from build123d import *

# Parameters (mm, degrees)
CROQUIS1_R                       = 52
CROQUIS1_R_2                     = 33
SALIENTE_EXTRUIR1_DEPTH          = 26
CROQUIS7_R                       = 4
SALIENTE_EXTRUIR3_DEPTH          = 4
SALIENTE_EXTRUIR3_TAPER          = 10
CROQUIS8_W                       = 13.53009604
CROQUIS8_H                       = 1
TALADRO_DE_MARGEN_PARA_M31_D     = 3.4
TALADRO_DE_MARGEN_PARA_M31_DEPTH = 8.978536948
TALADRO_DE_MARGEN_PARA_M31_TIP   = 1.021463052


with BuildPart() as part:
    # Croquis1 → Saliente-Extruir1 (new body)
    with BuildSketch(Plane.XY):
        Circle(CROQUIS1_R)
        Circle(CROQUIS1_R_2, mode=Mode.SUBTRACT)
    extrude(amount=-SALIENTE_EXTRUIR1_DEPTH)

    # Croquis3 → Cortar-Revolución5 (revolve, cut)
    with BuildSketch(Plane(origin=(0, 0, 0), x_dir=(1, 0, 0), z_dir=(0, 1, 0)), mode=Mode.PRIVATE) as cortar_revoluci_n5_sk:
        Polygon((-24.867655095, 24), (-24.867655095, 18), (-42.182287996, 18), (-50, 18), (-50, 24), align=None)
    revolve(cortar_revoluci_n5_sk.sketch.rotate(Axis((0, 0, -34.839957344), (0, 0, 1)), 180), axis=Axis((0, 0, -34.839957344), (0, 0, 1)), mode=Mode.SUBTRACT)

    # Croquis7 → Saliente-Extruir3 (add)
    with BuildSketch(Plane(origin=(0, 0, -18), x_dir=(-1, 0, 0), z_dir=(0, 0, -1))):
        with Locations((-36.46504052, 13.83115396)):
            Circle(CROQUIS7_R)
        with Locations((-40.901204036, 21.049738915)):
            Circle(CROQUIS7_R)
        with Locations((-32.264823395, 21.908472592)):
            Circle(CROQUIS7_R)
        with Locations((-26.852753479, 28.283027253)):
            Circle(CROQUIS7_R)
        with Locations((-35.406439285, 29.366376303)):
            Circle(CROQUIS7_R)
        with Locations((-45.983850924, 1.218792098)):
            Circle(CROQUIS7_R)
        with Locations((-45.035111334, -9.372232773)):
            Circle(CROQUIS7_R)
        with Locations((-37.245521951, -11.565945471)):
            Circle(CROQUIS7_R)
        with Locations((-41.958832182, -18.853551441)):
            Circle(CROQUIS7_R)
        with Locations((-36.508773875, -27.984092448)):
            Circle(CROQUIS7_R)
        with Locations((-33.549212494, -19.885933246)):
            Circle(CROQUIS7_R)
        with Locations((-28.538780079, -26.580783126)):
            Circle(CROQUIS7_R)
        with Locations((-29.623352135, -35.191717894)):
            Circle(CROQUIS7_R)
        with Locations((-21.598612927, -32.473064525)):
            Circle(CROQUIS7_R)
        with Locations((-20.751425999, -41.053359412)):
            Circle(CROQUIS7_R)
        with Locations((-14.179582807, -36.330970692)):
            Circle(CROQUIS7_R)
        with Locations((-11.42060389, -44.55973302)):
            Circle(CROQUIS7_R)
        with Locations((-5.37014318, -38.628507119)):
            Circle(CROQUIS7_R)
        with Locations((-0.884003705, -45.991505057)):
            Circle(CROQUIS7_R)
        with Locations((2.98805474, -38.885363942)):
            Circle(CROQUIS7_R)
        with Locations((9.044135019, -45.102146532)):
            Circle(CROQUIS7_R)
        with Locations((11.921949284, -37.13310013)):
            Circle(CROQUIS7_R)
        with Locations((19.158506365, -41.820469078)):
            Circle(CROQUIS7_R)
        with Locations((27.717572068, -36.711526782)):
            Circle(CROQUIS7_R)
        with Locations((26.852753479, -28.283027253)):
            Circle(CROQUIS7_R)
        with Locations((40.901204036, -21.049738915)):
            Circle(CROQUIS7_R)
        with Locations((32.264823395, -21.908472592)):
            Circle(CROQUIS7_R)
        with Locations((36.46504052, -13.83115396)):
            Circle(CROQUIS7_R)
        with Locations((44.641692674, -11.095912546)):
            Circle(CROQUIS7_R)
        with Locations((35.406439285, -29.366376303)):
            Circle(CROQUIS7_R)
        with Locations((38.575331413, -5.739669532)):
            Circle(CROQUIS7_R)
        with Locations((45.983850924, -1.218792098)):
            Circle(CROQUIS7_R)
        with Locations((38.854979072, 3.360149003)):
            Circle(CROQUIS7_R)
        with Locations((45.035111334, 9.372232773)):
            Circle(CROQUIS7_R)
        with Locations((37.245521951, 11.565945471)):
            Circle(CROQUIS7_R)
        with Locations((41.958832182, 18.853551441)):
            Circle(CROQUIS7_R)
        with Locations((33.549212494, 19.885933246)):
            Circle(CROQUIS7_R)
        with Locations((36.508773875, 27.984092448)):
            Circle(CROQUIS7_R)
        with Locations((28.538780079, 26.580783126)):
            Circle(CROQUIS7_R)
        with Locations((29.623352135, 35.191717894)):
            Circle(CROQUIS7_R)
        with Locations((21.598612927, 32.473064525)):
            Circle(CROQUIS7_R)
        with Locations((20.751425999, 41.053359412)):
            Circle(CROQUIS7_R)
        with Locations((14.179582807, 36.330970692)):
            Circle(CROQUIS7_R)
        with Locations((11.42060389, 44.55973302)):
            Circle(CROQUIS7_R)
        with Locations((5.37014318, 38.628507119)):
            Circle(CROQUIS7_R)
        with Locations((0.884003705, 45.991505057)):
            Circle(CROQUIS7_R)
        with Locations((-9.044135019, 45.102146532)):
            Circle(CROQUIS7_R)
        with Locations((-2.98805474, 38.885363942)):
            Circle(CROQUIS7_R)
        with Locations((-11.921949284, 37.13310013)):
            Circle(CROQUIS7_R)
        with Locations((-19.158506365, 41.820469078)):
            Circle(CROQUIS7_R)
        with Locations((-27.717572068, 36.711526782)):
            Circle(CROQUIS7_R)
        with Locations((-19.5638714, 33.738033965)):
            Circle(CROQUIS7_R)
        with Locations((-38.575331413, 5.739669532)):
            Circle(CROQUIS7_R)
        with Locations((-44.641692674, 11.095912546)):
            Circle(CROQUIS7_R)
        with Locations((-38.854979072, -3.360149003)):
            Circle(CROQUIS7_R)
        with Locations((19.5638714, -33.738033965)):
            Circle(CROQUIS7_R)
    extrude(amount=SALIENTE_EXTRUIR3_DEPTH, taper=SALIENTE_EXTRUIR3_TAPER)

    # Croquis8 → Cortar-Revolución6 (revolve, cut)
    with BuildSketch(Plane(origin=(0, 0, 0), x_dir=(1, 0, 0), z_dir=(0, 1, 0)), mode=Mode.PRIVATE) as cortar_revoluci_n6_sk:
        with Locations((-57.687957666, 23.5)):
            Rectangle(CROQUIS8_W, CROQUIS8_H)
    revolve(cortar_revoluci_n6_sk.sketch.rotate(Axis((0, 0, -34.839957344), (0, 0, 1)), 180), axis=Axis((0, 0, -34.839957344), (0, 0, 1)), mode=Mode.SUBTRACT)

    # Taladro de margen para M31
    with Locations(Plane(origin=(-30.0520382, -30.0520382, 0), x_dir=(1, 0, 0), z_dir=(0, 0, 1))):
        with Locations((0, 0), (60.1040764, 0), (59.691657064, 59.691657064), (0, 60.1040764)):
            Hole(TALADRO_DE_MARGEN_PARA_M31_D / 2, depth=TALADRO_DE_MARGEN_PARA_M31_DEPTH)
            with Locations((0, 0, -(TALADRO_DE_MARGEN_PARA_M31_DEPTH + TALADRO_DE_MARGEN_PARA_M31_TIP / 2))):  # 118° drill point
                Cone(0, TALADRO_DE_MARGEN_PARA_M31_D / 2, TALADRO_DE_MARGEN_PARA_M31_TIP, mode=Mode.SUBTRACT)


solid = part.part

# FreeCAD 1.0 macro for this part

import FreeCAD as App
import Part
import Sketcher

V = App.Vector

doc = App.newDocument("Part")
body = doc.addObject("PartDesign::Body", "Body")

# Sketch on XY plane
sketch1 = doc.addObject("Sketcher::SketchObject", "Sketch")
body.addObject(sketch1)
sketch1.AttachmentSupport = (doc.XY_Plane, [""])
sketch1.MapMode = "FlatFace"
sketch1.addGeometry(Part.Circle(V(0, 0, 0), V(0, 0, 1), 52), False)
sketch1.addGeometry(Part.Circle(V(0, 0, 0), V(0, 0, 1), 33), False)
sketch1.addConstraint(Sketcher.Constraint("Coincident", 0, 3, -1, 1))
sketch1.addConstraint(Sketcher.Constraint("Coincident", 1, 3, -1, 1))
sketch1.addConstraint(Sketcher.Constraint("Diameter", 0, 104.0))
sketch1.addConstraint(Sketcher.Constraint("Diameter", 1, 66.0))
pad1 = doc.addObject("PartDesign::Pad", "Pad")
body.addObject(pad1)
pad1.Profile = sketch1
pad1.Length = 26
pad1.Reversed = True

# Sketch on XZ plane
sketch2 = doc.addObject("Sketcher::SketchObject", "Sketch001")
body.addObject(sketch2)
sketch2.AttachmentSupport = (doc.XZ_Plane, [""])
sketch2.MapMode = "FlatFace"
sketch2.addGeometry(Part.LineSegment(V(-24.867655, -18, 0), V(-24.867655, -24, 0)), False)
sketch2.addGeometry(Part.LineSegment(V(-24.867655, -24, 0), V(-50, -24, 0)), False)
sketch2.addGeometry(Part.LineSegment(V(-50, -24, 0), V(-50, -18, 0)), False)
sketch2.addGeometry(Part.LineSegment(V(-50, -18, 0), V(-24.867655, -18, 0)), False)
sketch2.addConstraint(Sketcher.Constraint("Coincident", 0, 2, 1, 1))
sketch2.addConstraint(Sketcher.Constraint("Coincident", 1, 2, 2, 1))
sketch2.addConstraint(Sketcher.Constraint("Coincident", 2, 2, 3, 1))
sketch2.addConstraint(Sketcher.Constraint("Coincident", 3, 2, 0, 1))
sketch2.addConstraint(Sketcher.Constraint("Vertical", 0))
sketch2.addConstraint(Sketcher.Constraint("Horizontal", 1))
sketch2.addConstraint(Sketcher.Constraint("Vertical", 2))
sketch2.addConstraint(Sketcher.Constraint("Horizontal", 3))
sketch2.addConstraint(Sketcher.Constraint("DistanceY", 0, 2, 0, 1, 6.0))
sketch2.addConstraint(Sketcher.Constraint("DistanceY", 0, 2, -1, 1, 24.0))
sketch2.addConstraint(Sketcher.Constraint("DistanceX", 1, 2, -1, 1, 50.0))
sketch2.addConstraint(Sketcher.Constraint("DistanceX", 1, 2, 1, 1, 25.132345))
groove = doc.addObject("PartDesign::Groove", "Groove")
body.addObject(groove)
groove.Profile = sketch2
groove.ReferenceAxis = (sketch2, ["V_Axis"])
groove.Angle = 360

# Sketch on XY plane
sketch3 = doc.addObject("Sketcher::SketchObject", "Sketch002")
body.addObject(sketch3)
sketch3.AttachmentSupport = (doc.XY_Plane, [""])
sketch3.MapMode = "FlatFace"
sketch3.AttachmentOffset = App.Placement(V(0, 0, -18), App.Rotation())
sketch3.addGeometry(Part.Circle(V(36.465041, 13.831154, 0), V(0, 0, 1), 4), False)
sketch3.addGeometry(Part.Circle(V(40.901204, 21.049739, 0), V(0, 0, 1), 4), False)
sketch3.addGeometry(Part.Circle(V(32.264823, 21.908473, 0), V(0, 0, 1), 4), False)
sketch3.addGeometry(Part.Circle(V(26.852753, 28.283027, 0), V(0, 0, 1), 4), False)
sketch3.addGeometry(Part.Circle(V(35.406439, 29.366376, 0), V(0, 0, 1), 4), False)
sketch3.addGeometry(Part.Circle(V(45.983851, 1.218792, 0), V(0, 0, 1), 4), False)
sketch3.addGeometry(Part.Circle(V(45.035111, -9.372233, 0), V(0, 0, 1), 4), False)
sketch3.addGeometry(Part.Circle(V(37.245522, -11.565945, 0), V(0, 0, 1), 4), False)
sketch3.addGeometry(Part.Circle(V(41.958832, -18.853551, 0), V(0, 0, 1), 4), False)
sketch3.addGeometry(Part.Circle(V(36.508774, -27.984092, 0), V(0, 0, 1), 4), False)
sketch3.addGeometry(Part.Circle(V(33.549212, -19.885933, 0), V(0, 0, 1), 4), False)
sketch3.addGeometry(Part.Circle(V(28.53878, -26.580783, 0), V(0, 0, 1), 4), False)
sketch3.addGeometry(Part.Circle(V(29.623352, -35.191718, 0), V(0, 0, 1), 4), False)
sketch3.addGeometry(Part.Circle(V(21.598613, -32.473065, 0), V(0, 0, 1), 4), False)
sketch3.addGeometry(Part.Circle(V(20.751426, -41.053359, 0), V(0, 0, 1), 4), False)
sketch3.addGeometry(Part.Circle(V(14.179583, -36.330971, 0), V(0, 0, 1), 4), False)
sketch3.addGeometry(Part.Circle(V(11.420604, -44.559733, 0), V(0, 0, 1), 4), False)
sketch3.addGeometry(Part.Circle(V(5.370143, -38.628507, 0), V(0, 0, 1), 4), False)
sketch3.addGeometry(Part.Circle(V(0.884004, -45.991505, 0), V(0, 0, 1), 4), False)
sketch3.addGeometry(Part.Circle(V(-2.988055, -38.885364, 0), V(0, 0, 1), 4), False)
sketch3.addGeometry(Part.Circle(V(-9.044135, -45.102147, 0), V(0, 0, 1), 4), False)
sketch3.addGeometry(Part.Circle(V(-11.921949, -37.1331, 0), V(0, 0, 1), 4), False)
sketch3.addGeometry(Part.Circle(V(-19.158506, -41.820469, 0), V(0, 0, 1), 4), False)
sketch3.addGeometry(Part.Circle(V(-27.717572, -36.711527, 0), V(0, 0, 1), 4), False)
sketch3.addGeometry(Part.Circle(V(-26.852753, -28.283027, 0), V(0, 0, 1), 4), False)
sketch3.addGeometry(Part.Circle(V(-40.901204, -21.049739, 0), V(0, 0, 1), 4), False)
sketch3.addGeometry(Part.Circle(V(-32.264823, -21.908473, 0), V(0, 0, 1), 4), False)
sketch3.addGeometry(Part.Circle(V(-36.465041, -13.831154, 0), V(0, 0, 1), 4), False)
sketch3.addGeometry(Part.Circle(V(-44.641693, -11.095913, 0), V(0, 0, 1), 4), False)
sketch3.addGeometry(Part.Circle(V(-35.406439, -29.366376, 0), V(0, 0, 1), 4), False)
sketch3.addGeometry(Part.Circle(V(-38.575331, -5.73967, 0), V(0, 0, 1), 4), False)
sketch3.addGeometry(Part.Circle(V(-45.983851, -1.218792, 0), V(0, 0, 1), 4), False)
sketch3.addGeometry(Part.Circle(V(-38.854979, 3.360149, 0), V(0, 0, 1), 4), False)
sketch3.addGeometry(Part.Circle(V(-45.035111, 9.372233, 0), V(0, 0, 1), 4), False)
sketch3.addGeometry(Part.Circle(V(-37.245522, 11.565945, 0), V(0, 0, 1), 4), False)
sketch3.addGeometry(Part.Circle(V(-41.958832, 18.853551, 0), V(0, 0, 1), 4), False)
sketch3.addGeometry(Part.Circle(V(-33.549212, 19.885933, 0), V(0, 0, 1), 4), False)
sketch3.addGeometry(Part.Circle(V(-36.508774, 27.984092, 0), V(0, 0, 1), 4), False)
sketch3.addGeometry(Part.Circle(V(-28.53878, 26.580783, 0), V(0, 0, 1), 4), False)
sketch3.addGeometry(Part.Circle(V(-29.623352, 35.191718, 0), V(0, 0, 1), 4), False)
sketch3.addGeometry(Part.Circle(V(-21.598613, 32.473065, 0), V(0, 0, 1), 4), False)
sketch3.addGeometry(Part.Circle(V(-20.751426, 41.053359, 0), V(0, 0, 1), 4), False)
sketch3.addGeometry(Part.Circle(V(-14.179583, 36.330971, 0), V(0, 0, 1), 4), False)
sketch3.addGeometry(Part.Circle(V(-11.420604, 44.559733, 0), V(0, 0, 1), 4), False)
sketch3.addGeometry(Part.Circle(V(-5.370143, 38.628507, 0), V(0, 0, 1), 4), False)
sketch3.addGeometry(Part.Circle(V(-0.884004, 45.991505, 0), V(0, 0, 1), 4), False)
sketch3.addGeometry(Part.Circle(V(9.044135, 45.102147, 0), V(0, 0, 1), 4), False)
sketch3.addGeometry(Part.Circle(V(2.988055, 38.885364, 0), V(0, 0, 1), 4), False)
sketch3.addGeometry(Part.Circle(V(11.921949, 37.1331, 0), V(0, 0, 1), 4), False)
sketch3.addGeometry(Part.Circle(V(19.158506, 41.820469, 0), V(0, 0, 1), 4), False)
sketch3.addGeometry(Part.Circle(V(27.717572, 36.711527, 0), V(0, 0, 1), 4), False)
sketch3.addGeometry(Part.Circle(V(19.563871, 33.738034, 0), V(0, 0, 1), 4), False)
sketch3.addGeometry(Part.Circle(V(38.575331, 5.73967, 0), V(0, 0, 1), 4), False)
sketch3.addGeometry(Part.Circle(V(44.641693, 11.095913, 0), V(0, 0, 1), 4), False)
sketch3.addGeometry(Part.Circle(V(38.854979, -3.360149, 0), V(0, 0, 1), 4), False)
sketch3.addGeometry(Part.Circle(V(-19.563871, -33.738034, 0), V(0, 0, 1), 4), False)
sketch3.addConstraint(Sketcher.Constraint("Equal", 0, 1))
sketch3.addConstraint(Sketcher.Constraint("Equal", 1, 2))
sketch3.addConstraint(Sketcher.Constraint("Equal", 2, 3))
sketch3.addConstraint(Sketcher.Constraint("Equal", 3, 4))
sketch3.addConstraint(Sketcher.Constraint("Equal", 4, 5))
sketch3.addConstraint(Sketcher.Constraint("Equal", 5, 6))
sketch3.addConstraint(Sketcher.Constraint("Equal", 6, 7))
sketch3.addConstraint(Sketcher.Constraint("Equal", 7, 8))
sketch3.addConstraint(Sketcher.Constraint("Equal", 8, 9))
sketch3.addConstraint(Sketcher.Constraint("Equal", 9, 10))
sketch3.addConstraint(Sketcher.Constraint("Equal", 10, 11))
sketch3.addConstraint(Sketcher.Constraint("Equal", 11, 12))
sketch3.addConstraint(Sketcher.Constraint("Equal", 12, 13))
sketch3.addConstraint(Sketcher.Constraint("Equal", 13, 14))
sketch3.addConstraint(Sketcher.Constraint("Equal", 14, 15))
sketch3.addConstraint(Sketcher.Constraint("Equal", 15, 16))
sketch3.addConstraint(Sketcher.Constraint("Equal", 16, 17))
sketch3.addConstraint(Sketcher.Constraint("Equal", 17, 18))
sketch3.addConstraint(Sketcher.Constraint("Equal", 18, 19))
sketch3.addConstraint(Sketcher.Constraint("Equal", 19, 20))
sketch3.addConstraint(Sketcher.Constraint("Equal", 20, 21))
sketch3.addConstraint(Sketcher.Constraint("Equal", 21, 22))
sketch3.addConstraint(Sketcher.Constraint("Equal", 22, 23))
sketch3.addConstraint(Sketcher.Constraint("Equal", 23, 24))
sketch3.addConstraint(Sketcher.Constraint("Equal", 24, 25))
sketch3.addConstraint(Sketcher.Constraint("Equal", 25, 26))
sketch3.addConstraint(Sketcher.Constraint("Equal", 26, 27))
sketch3.addConstraint(Sketcher.Constraint("Equal", 27, 28))
sketch3.addConstraint(Sketcher.Constraint("Equal", 28, 29))
sketch3.addConstraint(Sketcher.Constraint("Equal", 29, 30))
sketch3.addConstraint(Sketcher.Constraint("Equal", 30, 31))
sketch3.addConstraint(Sketcher.Constraint("Equal", 31, 32))
sketch3.addConstraint(Sketcher.Constraint("Equal", 32, 33))
sketch3.addConstraint(Sketcher.Constraint("Equal", 33, 34))
sketch3.addConstraint(Sketcher.Constraint("Equal", 34, 35))
sketch3.addConstraint(Sketcher.Constraint("Equal", 35, 36))
sketch3.addConstraint(Sketcher.Constraint("Equal", 36, 37))
sketch3.addConstraint(Sketcher.Constraint("Equal", 37, 38))
sketch3.addConstraint(Sketcher.Constraint("Equal", 38, 39))
sketch3.addConstraint(Sketcher.Constraint("Equal", 39, 40))
sketch3.addConstraint(Sketcher.Constraint("Equal", 40, 41))
sketch3.addConstraint(Sketcher.Constraint("Equal", 41, 42))
sketch3.addConstraint(Sketcher.Constraint("Equal", 42, 43))
sketch3.addConstraint(Sketcher.Constraint("Equal", 43, 44))
sketch3.addConstraint(Sketcher.Constraint("Equal", 44, 45))
sketch3.addConstraint(Sketcher.Constraint("Equal", 45, 46))
sketch3.addConstraint(Sketcher.Constraint("Equal", 46, 47))
sketch3.addConstraint(Sketcher.Constraint("Equal", 47, 48))
sketch3.addConstraint(Sketcher.Constraint("Equal", 48, 49))
sketch3.addConstraint(Sketcher.Constraint("Equal", 49, 50))
sketch3.addConstraint(Sketcher.Constraint("Equal", 50, 51))
sketch3.addConstraint(Sketcher.Constraint("Equal", 51, 52))
sketch3.addConstraint(Sketcher.Constraint("Equal", 52, 53))
sketch3.addConstraint(Sketcher.Constraint("Equal", 53, 54))
sketch3.addConstraint(Sketcher.Constraint("Equal", 54, 55))
sketch3.addConstraint(Sketcher.Constraint("Symmetric", 3, 3, 24, 3, -1, 1))
sketch3.addConstraint(Sketcher.Constraint("Symmetric", 1, 3, 25, 3, -1, 1))
sketch3.addConstraint(Sketcher.Constraint("Symmetric", 2, 3, 26, 3, -1, 1))
sketch3.addConstraint(Sketcher.Constraint("Symmetric", 0, 3, 27, 3, -1, 1))
sketch3.addConstraint(Sketcher.Constraint("Symmetric", 4, 3, 29, 3, -1, 1))
sketch3.addConstraint(Sketcher.Constraint("Symmetric", 5, 3, 31, 3, -1, 1))
sketch3.addConstraint(Sketcher.Constraint("Symmetric", 6, 3, 33, 3, -1, 1))
sketch3.addConstraint(Sketcher.Constraint("Symmetric", 7, 3, 34, 3, -1, 1))
sketch3.addConstraint(Sketcher.Constraint("Symmetric", 8, 3, 35, 3, -1, 1))
sketch3.addConstraint(Sketcher.Constraint("Symmetric", 10, 3, 36, 3, -1, 1))
sketch3.addConstraint(Sketcher.Constraint("Symmetric", 9, 3, 37, 3, -1, 1))
sketch3.addConstraint(Sketcher.Constraint("Symmetric", 11, 3, 38, 3, -1, 1))
sketch3.addConstraint(Sketcher.Constraint("Symmetric", 12, 3, 39, 3, -1, 1))
sketch3.addConstraint(Sketcher.Constraint("Symmetric", 13, 3, 40, 3, -1, 1))
sketch3.addConstraint(Sketcher.Constraint("Symmetric", 14, 3, 41, 3, -1, 1))
sketch3.addConstraint(Sketcher.Constraint("Symmetric", 15, 3, 42, 3, -1, 1))
sketch3.addConstraint(Sketcher.Constraint("Symmetric", 16, 3, 43, 3, -1, 1))
sketch3.addConstraint(Sketcher.Constraint("Symmetric", 17, 3, 44, 3, -1, 1))
sketch3.addConstraint(Sketcher.Constraint("Symmetric", 18, 3, 45, 3, -1, 1))
sketch3.addConstraint(Sketcher.Constraint("Symmetric", 20, 3, 46, 3, -1, 1))
sketch3.addConstraint(Sketcher.Constraint("Symmetric", 19, 3, 47, 3, -1, 1))
sketch3.addConstraint(Sketcher.Constraint("Symmetric", 21, 3, 48, 3, -1, 1))
sketch3.addConstraint(Sketcher.Constraint("Symmetric", 22, 3, 49, 3, -1, 1))
sketch3.addConstraint(Sketcher.Constraint("Symmetric", 23, 3, 50, 3, -1, 1))
sketch3.addConstraint(Sketcher.Constraint("Symmetric", 30, 3, 52, 3, -1, 1))
sketch3.addConstraint(Sketcher.Constraint("Symmetric", 28, 3, 53, 3, -1, 1))
sketch3.addConstraint(Sketcher.Constraint("Symmetric", 32, 3, 54, 3, -1, 1))
sketch3.addConstraint(Sketcher.Constraint("Symmetric", 51, 3, 55, 3, -1, 1))
sketch3.addConstraint(Sketcher.Constraint("Diameter", 0, 8.0))
sketch3.addConstraint(Sketcher.Constraint("DistanceY", 21, 3, -1, 1, 37.1331))
sketch3.addConstraint(Sketcher.Constraint("DistanceX", 4, 3, 0, 3, 1.058601))
sketch3.addConstraint(Sketcher.Constraint("DistanceY", 7, 3, 0, 3, 25.397099))
sketch3.addConstraint(Sketcher.Constraint("DistanceX", 2, 3, 7, 3, 4.980699))
sketch3.addConstraint(Sketcher.Constraint("DistanceX", 10, 3, 6, 3, 11.485899))
sketch3.addConstraint(Sketcher.Constraint("DistanceY", 10, 3, 6, 3, 10.5137))
sketch3.addConstraint(Sketcher.Constraint("DistanceX", 13, 3, 10, 3, 11.9506))
sketch3.addConstraint(Sketcher.Constraint("DistanceX", 18, 3, 16, 3, 10.5366))
sketch3.addConstraint(Sketcher.Constraint("DistanceY", 23, 3, 24, 3, 8.4285))
sketch3.addConstraint(Sketcher.Constraint("DistanceX", 24, 3, 19, 3, 23.864699))
sketch3.addConstraint(Sketcher.Constraint("DistanceX", 35, 3, 30, 3, 3.383501))
sketch3.addConstraint(Sketcher.Constraint("DistanceX", 51, 3, 50, 3, 8.153701))
sketch3.addConstraint(Sketcher.Constraint("DistanceX", -1, 1, 0, 3, 36.465041))
sketch3.addConstraint(Sketcher.Constraint("DistanceY", -1, 1, 1, 3, 21.049739))
sketch3.addConstraint(Sketcher.Constraint("DistanceX", -1, 1, 5, 3, 45.983851))
sketch3.addConstraint(Sketcher.Constraint("DistanceX", -1, 1, 6, 3, 45.035111))
sketch3.addConstraint(Sketcher.Constraint("DistanceX", -1, 1, 7, 3, 37.245522))
sketch3.addConstraint(Sketcher.Constraint("DistanceY", 8, 3, -1, 1, 18.853551))
sketch3.addConstraint(Sketcher.Constraint("DistanceX", -1, 1, 11, 3, 28.53878))
sketch3.addConstraint(Sketcher.Constraint("DistanceY", 14, 3, -1, 1, 41.053359))
sketch3.addConstraint(Sketcher.Constraint("DistanceY", 15, 3, -1, 1, 36.330971))
sketch3.addConstraint(Sketcher.Constraint("DistanceX", 21, 3, -1, 1, 11.921949))
sketch3.addConstraint(Sketcher.Constraint("DistanceY", 22, 3, -1, 1, 41.820469))
sketch3.addConstraint(Sketcher.Constraint("DistanceX", 30, 3, -1, 1, 38.575331))
sketch3.addConstraint(Sketcher.Constraint("DistanceY", 30, 3, -1, 1, 5.73967))
sketch3.addConstraint(Sketcher.Constraint("DistanceX", 32, 3, -1, 1, 38.854979))
sketch3.addConstraint(Sketcher.Constraint("DistanceY", -1, 1, 32, 3, 3.360149))
sketch3.addConstraint(Sketcher.Constraint("DistanceX", -1, 1, 51, 3, 19.563871))
sketch3.addConstraint(Sketcher.Constraint("DistanceX", 2, 3, 1, 3, 8.636381))
sketch3.addConstraint(Sketcher.Constraint("DistanceY", 0, 3, 2, 3, 8.077319))
sketch3.addConstraint(Sketcher.Constraint("DistanceX", 3, 3, 2, 3, 5.41207))
sketch3.addConstraint(Sketcher.Constraint("DistanceY", 1, 3, 3, 3, 7.233288))
sketch3.addConstraint(Sketcher.Constraint("DistanceY", 3, 3, 4, 3, 1.083349))
sketch3.addConstraint(Sketcher.Constraint("DistanceY", 5, 3, 0, 3, 12.612362))
sketch3.addConstraint(Sketcher.Constraint("DistanceY", 6, 3, 1, 3, 30.421972))
sketch3.addConstraint(Sketcher.Constraint("DistanceX", 9, 3, 8, 3, 5.450058))
sketch3.addConstraint(Sketcher.Constraint("DistanceY", 9, 3, 8, 3, 9.130541))
sketch3.addConstraint(Sketcher.Constraint("DistanceY", 9, 3, 11, 3, 1.403309))
sketch3.addConstraint(Sketcher.Constraint("DistanceX", 12, 3, 9, 3, 6.885422))
sketch3.addConstraint(Sketcher.Constraint("DistanceY", 13, 3, 11, 3, 5.892281))
sketch3.addConstraint(Sketcher.Constraint("DistanceY", 14, 3, 12, 3, 5.861642))
sketch3.addConstraint(Sketcher.Constraint("DistanceX", 15, 3, 13, 3, 7.41903))
sketch3.addConstraint(Sketcher.Constraint("DistanceX", 16, 3, 15, 3, 2.758979))
sketch3.addConstraint(Sketcher.Constraint("DistanceY", 16, 3, 13, 3, 12.086668))
sketch3.addConstraint(Sketcher.Constraint("DistanceX", 17, 3, 16, 3, 6.050461))
sketch3.addConstraint(Sketcher.Constraint("DistanceY", 17, 3, 12, 3, 3.436789))
sketch3.addConstraint(Sketcher.Constraint("DistanceY", 18, 3, 13, 3, 13.518441))
sketch3.addConstraint(Sketcher.Constraint("DistanceY", 18, 3, 19, 3, 7.106141))
sketch3.addConstraint(Sketcher.Constraint("DistanceX", 19, 3, 14, 3, 23.739481))
sketch3.addConstraint(Sketcher.Constraint("DistanceX", 20, 3, 19, 3, 6.05608))
sketch3.addConstraint(Sketcher.Constraint("DistanceY", 18, 3, 20, 3, 0.889359))
sketch3.addConstraint(Sketcher.Constraint("DistanceX", 22, 3, 20, 3, 10.114371))
sketch3.addConstraint(Sketcher.Constraint("DistanceY", 27, 3, 28, 3, 2.735241))
sketch3.addConstraint(Sketcher.Constraint("DistanceX", 28, 3, 25, 3, 3.740489))
sketch3.addConstraint(Sketcher.Constraint("DistanceY", 31, 3, 32, 3, 4.578941))
sketch3.addConstraint(Sketcher.Constraint("DistanceY", -1, 1, 51, 3, 33.738034))
pad2 = doc.addObject("PartDesign::Pad", "Pad001")
body.addObject(pad2)
pad2.Profile = sketch3
pad2.Length = 4
pad2.Reversed = True
pad2.TaperAngle = -10

# Sketch on XZ plane
sketch4 = doc.addObject("Sketcher::SketchObject", "Sketch003")
body.addObject(sketch4)
sketch4.AttachmentSupport = (doc.XZ_Plane, [""])
sketch4.MapMode = "FlatFace"
sketch4.addGeometry(Part.LineSegment(V(-64.453006, -24, 0), V(-64.453006, -23, 0)), False)
sketch4.addGeometry(Part.LineSegment(V(-64.453006, -23, 0), V(-50.92291, -23, 0)), False)
sketch4.addGeometry(Part.LineSegment(V(-50.92291, -23, 0), V(-50.92291, -24, 0)), False)
sketch4.addGeometry(Part.LineSegment(V(-50.92291, -24, 0), V(-64.453006, -24, 0)), False)
sketch4.addConstraint(Sketcher.Constraint("Coincident", 0, 2, 1, 1))
sketch4.addConstraint(Sketcher.Constraint("Coincident", 1, 2, 2, 1))
sketch4.addConstraint(Sketcher.Constraint("Coincident", 2, 2, 3, 1))
sketch4.addConstraint(Sketcher.Constraint("Coincident", 3, 2, 0, 1))
sketch4.addConstraint(Sketcher.Constraint("Vertical", 0))
sketch4.addConstraint(Sketcher.Constraint("Horizontal", 1))
sketch4.addConstraint(Sketcher.Constraint("Vertical", 2))
sketch4.addConstraint(Sketcher.Constraint("Horizontal", 3))
sketch4.addConstraint(Sketcher.Constraint("DistanceY", 0, 1, 0, 2, 1.0))
sketch4.addConstraint(Sketcher.Constraint("DistanceY", 0, 2, -1, 1, 23.0))
sketch4.addConstraint(Sketcher.Constraint("DistanceX", 1, 1, 1, 2, 13.530096))
sketch4.addConstraint(Sketcher.Constraint("DistanceX", 1, 2, -1, 1, 50.92291))
groove2 = doc.addObject("PartDesign::Groove", "Groove001")
body.addObject(groove2)
groove2.Profile = sketch4
groove2.ReferenceAxis = (sketch4, ["V_Axis"])
groove2.Angle = 360

# Sketch on XY plane
sketch5 = doc.addObject("Sketcher::SketchObject", "Sketch004")
body.addObject(sketch5)
sketch5.AttachmentSupport = (doc.XY_Plane, [""])
sketch5.MapMode = "FlatFace"
sketch5.addGeometry(Part.Circle(V(-30.052038, -30.052038, 0), V(0, 0, 1), 1.7), False)
sketch5.addGeometry(Part.Circle(V(30.052038, -30.052038, 0), V(0, 0, 1), 1.7), False)
sketch5.addGeometry(Part.Circle(V(29.639619, 29.639619, 0), V(0, 0, 1), 1.7), False)
sketch5.addGeometry(Part.Circle(V(-30.052038, 30.052038, 0), V(0, 0, 1), 1.7), False)
sketch5.addConstraint(Sketcher.Constraint("Equal", 0, 1))
sketch5.addConstraint(Sketcher.Constraint("Equal", 1, 2))
sketch5.addConstraint(Sketcher.Constraint("Equal", 2, 3))
sketch5.addConstraint(Sketcher.Constraint("Symmetric", 1, 3, 3, 3, -1, 1))
sketch5.addConstraint(Sketcher.Constraint("Symmetric", 0, 3, 1, 3, -2))
sketch5.addConstraint(Sketcher.Constraint("Diameter", 0, 3.4))
sketch5.addConstraint(Sketcher.Constraint("DistanceX", 0, 3, -1, 1, 30.052038))
sketch5.addConstraint(Sketcher.Constraint("DistanceY", 0, 3, -1, 1, 30.052038))
sketch5.addConstraint(Sketcher.Constraint("DistanceX", -1, 1, 2, 3, 29.639619))
sketch5.addConstraint(Sketcher.Constraint("DistanceY", -1, 1, 2, 3, 29.639619))
doc.recompute()
hole = doc.addObject("PartDesign::Hole", "Hole")
body.addObject(hole)
hole.Profile = sketch5
hole.ThreadType = "None"
hole.Diameter = 3.4
hole.DepthType = "Dimension"
hole.Depth = 8.978537
hole.DrillPoint = "Angled"
hole.DrillPointAngle = 118

doc.recompute()
